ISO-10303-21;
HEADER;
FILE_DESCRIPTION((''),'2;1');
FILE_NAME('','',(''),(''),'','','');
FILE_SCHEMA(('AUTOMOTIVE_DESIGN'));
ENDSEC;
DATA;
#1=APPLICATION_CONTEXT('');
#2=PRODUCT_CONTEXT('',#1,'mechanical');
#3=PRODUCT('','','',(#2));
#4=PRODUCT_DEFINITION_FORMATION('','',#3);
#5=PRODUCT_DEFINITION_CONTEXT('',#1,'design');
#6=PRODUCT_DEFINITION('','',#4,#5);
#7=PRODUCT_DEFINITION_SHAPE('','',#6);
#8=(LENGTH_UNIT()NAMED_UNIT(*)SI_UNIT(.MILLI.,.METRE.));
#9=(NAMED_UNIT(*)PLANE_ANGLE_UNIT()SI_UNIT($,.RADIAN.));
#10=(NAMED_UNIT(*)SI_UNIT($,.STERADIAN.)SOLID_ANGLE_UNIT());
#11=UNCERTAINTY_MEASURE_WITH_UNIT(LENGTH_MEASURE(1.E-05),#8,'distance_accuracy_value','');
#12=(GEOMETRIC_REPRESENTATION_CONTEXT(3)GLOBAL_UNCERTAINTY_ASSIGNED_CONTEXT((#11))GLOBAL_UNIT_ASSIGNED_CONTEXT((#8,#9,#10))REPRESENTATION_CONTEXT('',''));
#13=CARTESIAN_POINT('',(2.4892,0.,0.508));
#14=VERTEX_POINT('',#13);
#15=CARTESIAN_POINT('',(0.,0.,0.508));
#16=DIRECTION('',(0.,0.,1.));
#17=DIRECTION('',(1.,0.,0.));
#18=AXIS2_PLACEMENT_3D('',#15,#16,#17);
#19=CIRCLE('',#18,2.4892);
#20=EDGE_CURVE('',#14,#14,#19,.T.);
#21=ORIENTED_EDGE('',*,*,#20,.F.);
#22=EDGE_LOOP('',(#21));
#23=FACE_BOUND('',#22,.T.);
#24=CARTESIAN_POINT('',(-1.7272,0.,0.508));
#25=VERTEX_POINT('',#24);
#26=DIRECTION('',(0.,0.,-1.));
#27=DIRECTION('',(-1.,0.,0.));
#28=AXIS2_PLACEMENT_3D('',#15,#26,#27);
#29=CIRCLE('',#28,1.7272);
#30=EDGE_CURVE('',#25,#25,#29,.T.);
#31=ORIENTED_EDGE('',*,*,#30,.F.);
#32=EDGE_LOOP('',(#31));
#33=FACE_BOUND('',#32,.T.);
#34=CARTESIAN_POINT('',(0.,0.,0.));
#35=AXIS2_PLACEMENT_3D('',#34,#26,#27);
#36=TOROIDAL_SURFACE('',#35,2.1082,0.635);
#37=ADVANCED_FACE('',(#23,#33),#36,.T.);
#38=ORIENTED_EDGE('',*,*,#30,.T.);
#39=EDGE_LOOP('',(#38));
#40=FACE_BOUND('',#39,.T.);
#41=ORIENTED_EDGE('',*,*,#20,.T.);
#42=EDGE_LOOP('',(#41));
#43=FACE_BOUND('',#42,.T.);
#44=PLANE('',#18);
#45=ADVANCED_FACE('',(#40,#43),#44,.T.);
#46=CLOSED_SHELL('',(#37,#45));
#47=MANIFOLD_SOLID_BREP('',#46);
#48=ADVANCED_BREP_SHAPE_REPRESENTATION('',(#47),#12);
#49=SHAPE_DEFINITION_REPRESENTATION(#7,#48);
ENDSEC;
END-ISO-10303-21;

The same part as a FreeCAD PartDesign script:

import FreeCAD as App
import Part
import Sketcher
Q = App.Units.Quantity

doc = App.newDocument("Part")
body = doc.addObject("PartDesign::Body", "Body")

sketch1 = body.newObject("Sketcher::SketchObject", "Sketch")
sketch1.AttachmentSupport = (doc.getObject("XZ_Plane"), [""])
sketch1.MapMode = "FlatFace"
sketch1.addGeometry(Part.Circle(App.Vector(2.1082, 0, 0), App.Vector(0, 0, 1), 0.635), False)
sketch1.addConstraint([
    Sketcher.Constraint("PointOnObject", 0, 3, -1),
    Sketcher.Constraint("Diameter", 0, Q("0.05 in")),
    Sketcher.Constraint("DistanceX", -1, 1, 0, 3, Q("0.083 in")),
])
revolution = body.newObject("PartDesign::Revolution", "Revolution")
revolution.Profile = sketch1
revolution.ReferenceAxis = (sketch1, ["V_Axis"])
revolution.Angle = 360

sketch2 = body.newObject("Sketcher::SketchObject", "Sketch001")
sketch2.AttachmentSupport = (doc.getObject("XY_Plane"), [""])
sketch2.MapMode = "FlatFace"
sketch2.AttachmentOffset = App.Placement(App.Vector(0, 0, 0.025 * 25.4), App.Rotation())
sketch2.addGeometry(Part.Circle(App.Vector(0, 0, 0), App.Vector(0, 0, 1), 3.175), False)
sketch2.addConstraint([
    Sketcher.Constraint("Coincident", 0, 3, -1, 1),
    Sketcher.Constraint("Diameter", 0, Q("0.25 in")),
])
pocket1 = body.newObject("PartDesign::Pocket", "Pocket")
pocket1.Profile = sketch2
pocket1.Length = Q("0.01 in")
pocket1.Midplane = True

doc.recompute()
